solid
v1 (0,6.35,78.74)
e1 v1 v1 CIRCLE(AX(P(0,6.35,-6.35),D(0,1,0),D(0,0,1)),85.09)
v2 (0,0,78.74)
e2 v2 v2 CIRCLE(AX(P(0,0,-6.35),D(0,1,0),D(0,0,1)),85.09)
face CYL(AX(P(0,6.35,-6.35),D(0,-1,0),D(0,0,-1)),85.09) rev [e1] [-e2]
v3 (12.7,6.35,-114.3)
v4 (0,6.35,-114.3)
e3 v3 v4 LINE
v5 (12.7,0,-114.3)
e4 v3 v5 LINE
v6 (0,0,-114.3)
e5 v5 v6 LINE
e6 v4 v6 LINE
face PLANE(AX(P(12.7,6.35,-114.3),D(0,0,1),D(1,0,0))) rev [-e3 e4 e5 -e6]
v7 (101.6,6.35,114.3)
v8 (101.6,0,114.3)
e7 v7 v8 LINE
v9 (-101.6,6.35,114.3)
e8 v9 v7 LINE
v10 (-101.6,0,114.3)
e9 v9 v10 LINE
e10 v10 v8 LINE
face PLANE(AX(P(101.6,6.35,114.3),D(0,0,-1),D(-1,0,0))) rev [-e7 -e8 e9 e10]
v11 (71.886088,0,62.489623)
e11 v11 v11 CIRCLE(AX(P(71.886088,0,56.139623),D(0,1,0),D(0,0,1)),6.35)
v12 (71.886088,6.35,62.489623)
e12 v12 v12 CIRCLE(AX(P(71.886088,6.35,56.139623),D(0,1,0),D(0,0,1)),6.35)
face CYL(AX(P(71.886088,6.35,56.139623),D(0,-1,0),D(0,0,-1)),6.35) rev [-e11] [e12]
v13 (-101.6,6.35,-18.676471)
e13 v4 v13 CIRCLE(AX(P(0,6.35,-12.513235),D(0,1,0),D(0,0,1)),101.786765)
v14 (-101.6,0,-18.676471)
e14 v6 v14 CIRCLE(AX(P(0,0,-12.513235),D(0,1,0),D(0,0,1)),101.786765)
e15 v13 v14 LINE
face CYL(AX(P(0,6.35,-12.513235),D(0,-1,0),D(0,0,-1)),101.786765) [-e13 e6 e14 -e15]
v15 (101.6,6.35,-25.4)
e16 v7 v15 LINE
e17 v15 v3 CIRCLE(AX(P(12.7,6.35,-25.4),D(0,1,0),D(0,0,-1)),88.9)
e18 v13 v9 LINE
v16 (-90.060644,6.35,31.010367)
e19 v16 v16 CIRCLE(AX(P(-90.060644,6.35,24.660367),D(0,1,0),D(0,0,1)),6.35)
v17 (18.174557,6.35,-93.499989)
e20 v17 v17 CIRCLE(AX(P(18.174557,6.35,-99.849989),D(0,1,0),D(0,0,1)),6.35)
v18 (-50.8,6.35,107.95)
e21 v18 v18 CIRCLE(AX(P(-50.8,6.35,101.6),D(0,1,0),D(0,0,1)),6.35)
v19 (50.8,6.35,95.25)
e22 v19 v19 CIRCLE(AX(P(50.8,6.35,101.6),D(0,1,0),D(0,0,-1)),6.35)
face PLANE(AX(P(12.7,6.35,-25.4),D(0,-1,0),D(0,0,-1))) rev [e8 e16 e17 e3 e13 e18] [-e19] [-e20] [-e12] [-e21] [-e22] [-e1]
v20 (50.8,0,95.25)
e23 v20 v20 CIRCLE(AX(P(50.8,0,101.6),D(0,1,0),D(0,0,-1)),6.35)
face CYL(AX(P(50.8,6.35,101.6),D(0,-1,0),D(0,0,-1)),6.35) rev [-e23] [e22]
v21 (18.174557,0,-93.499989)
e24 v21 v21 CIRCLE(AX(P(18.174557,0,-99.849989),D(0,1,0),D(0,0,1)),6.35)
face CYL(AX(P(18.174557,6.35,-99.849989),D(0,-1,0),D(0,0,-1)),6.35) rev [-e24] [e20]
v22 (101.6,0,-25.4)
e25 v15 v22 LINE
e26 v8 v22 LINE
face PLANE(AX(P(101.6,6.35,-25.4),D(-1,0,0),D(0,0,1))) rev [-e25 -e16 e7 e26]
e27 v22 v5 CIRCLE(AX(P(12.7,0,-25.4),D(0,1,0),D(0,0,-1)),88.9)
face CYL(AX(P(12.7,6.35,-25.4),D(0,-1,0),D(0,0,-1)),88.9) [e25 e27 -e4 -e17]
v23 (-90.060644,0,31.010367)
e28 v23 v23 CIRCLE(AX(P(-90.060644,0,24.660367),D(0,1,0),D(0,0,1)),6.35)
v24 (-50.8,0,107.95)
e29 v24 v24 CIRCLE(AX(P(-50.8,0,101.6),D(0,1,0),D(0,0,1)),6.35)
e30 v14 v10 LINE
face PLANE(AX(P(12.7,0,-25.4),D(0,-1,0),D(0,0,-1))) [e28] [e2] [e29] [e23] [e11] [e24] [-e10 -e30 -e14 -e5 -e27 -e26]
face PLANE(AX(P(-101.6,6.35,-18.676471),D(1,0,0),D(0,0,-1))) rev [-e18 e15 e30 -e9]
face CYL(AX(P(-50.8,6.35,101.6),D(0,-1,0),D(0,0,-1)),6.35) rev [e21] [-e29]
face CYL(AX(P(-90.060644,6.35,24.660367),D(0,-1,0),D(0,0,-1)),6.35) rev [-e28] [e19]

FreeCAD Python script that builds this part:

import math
import FreeCAD as App
import Part
import Sketcher
from FreeCAD import Vector
Q = App.Units.Quantity

doc = App.newDocument("Part")
body = doc.addObject("PartDesign::Body", "Body")

# Sketch on XZ plane
sketch1 = body.newObject("Sketcher::SketchObject", "Sketch")
sketch1.AttachmentSupport = (doc.getObject("XZ_Plane"), [""])
sketch1.MapMode = "FlatFace"
sketch1.addGeometry([
    Part.LineSegment(Vector(12.7, -114.3, 0), Vector(0, -114.3, 0)),  # 0
    Part.ArcOfCircle(Part.Circle(Vector(0, -12.513235, 0), Vector(0, 0, 1), 101.786765), math.radians(-176.528591), math.radians(-90)),  # 1
    Part.LineSegment(Vector(-101.6, -18.676471, 0), Vector(-101.6, 114.3, 0)),  # 2
    Part.LineSegment(Vector(-101.6, 114.3, 0), Vector(101.6, 114.3, 0)),  # 3
    Part.LineSegment(Vector(101.6, 114.3, 0), Vector(101.6, -25.4, 0)),  # 4
    Part.ArcOfCircle(Part.Circle(Vector(12.7, -25.4, 0), Vector(0, 0, 1), 88.9), math.radians(-90), math.radians(0)),  # 5
    Part.Circle(Vector(-50.8, 101.6, 0), Vector(0, 0, 1), 6.35),  # 6
    Part.Circle(Vector(-90.060644, 24.660367, 0), Vector(0, 0, 1), 6.35),  # 7
    Part.Circle(Vector(50.8, 101.6, 0), Vector(0, 0, 1), 6.35),  # 8
    Part.Circle(Vector(71.886088, 56.139623, 0), Vector(0, 0, 1), 6.35),  # 9
    Part.Circle(Vector(0, -6.35, 0), Vector(0, 0, 1), 85.09),  # 10
    Part.Circle(Vector(18.174557, -99.849989, 0), Vector(0, 0, 1), 6.35),  # 11
], False)
sketch1.addConstraint([
    Sketcher.Constraint("Tangent", 0, 2, 1, 2),
    Sketcher.Constraint("Coincident", 1, 1, 2, 1),
    Sketcher.Constraint("Coincident", 2, 2, 3, 1),
    Sketcher.Constraint("Coincident", 3, 2, 4, 1),
    Sketcher.Constraint("Tangent", 4, 2, 5, 2),
    Sketcher.Constraint("Tangent", 5, 1, 0, 1),
    Sketcher.Constraint("Horizontal", 0),
    Sketcher.Constraint("Vertical", 2),
    Sketcher.Constraint("Horizontal", 3),
    Sketcher.Constraint("Vertical", 4),
    Sketcher.Constraint("Equal", 6, 7),
    Sketcher.Constraint("Equal", 7, 8),
    Sketcher.Constraint("Equal", 8, 9),
    Sketcher.Constraint("Equal", 9, 11),
    Sketcher.Constraint("Symmetric", 6, 3, 8, 3, -2),
    Sketcher.Constraint("PointOnObject", 1, 3, -2),
    Sketcher.Constraint("PointOnObject", 10, 3, -2),
    Sketcher.Constraint("Diameter", 6, Q("0.5 in")),
    Sketcher.Constraint("Diameter", 10, Q("6.7 in")),
    Sketcher.Constraint("Radius", 5, Q("3.5 in")),
    Sketcher.Constraint("DistanceX", 3, 1, 3, 2, Q("8 in")),
    Sketcher.Constraint("DistanceX", 0, 2, 0, 1, Q("0.5 in")),
    Sketcher.Constraint("DistanceY", 4, 2, 4, 1, Q("5.5 in")),
    Sketcher.Constraint("DistanceY", 5, 3, -1, 1, Q("1 in")),
    Sketcher.Constraint("DistanceX", 6, 3, -1, 1, Q("2 in")),
    Sketcher.Constraint("DistanceY", -1, 1, 6, 3, Q("4 in")),
    Sketcher.Constraint("DistanceY", 10, 3, -1, 1, Q("0.25 in")),
    Sketcher.Constraint("Radius", 1, Q("101.786765 mm")),
    Sketcher.Constraint("DistanceX", 7, 3, 11, 3, Q("108.235201 mm")),
    Sketcher.Constraint("DistanceY", 11, 3, -1, 1, Q("99.849989 mm")),
    Sketcher.Constraint("DistanceX", 7, 3, 9, 3, Q("161.946732 mm")),
    Sketcher.Constraint("DistanceY", 11, 3, 9, 3, Q("155.989612 mm")),
    Sketcher.Constraint("DistanceX", 7, 3, -1, 1, Q("90.060644 mm")),
    Sketcher.Constraint("DistanceY", -1, 1, 7, 3, Q("24.660367 mm")),
])
pad1 = body.newObject("PartDesign::Pad", "Pad")
pad1.Profile = sketch1
pad1.Length = Q("0.25 in")
pad1.Reversed = True

doc.recompute()
